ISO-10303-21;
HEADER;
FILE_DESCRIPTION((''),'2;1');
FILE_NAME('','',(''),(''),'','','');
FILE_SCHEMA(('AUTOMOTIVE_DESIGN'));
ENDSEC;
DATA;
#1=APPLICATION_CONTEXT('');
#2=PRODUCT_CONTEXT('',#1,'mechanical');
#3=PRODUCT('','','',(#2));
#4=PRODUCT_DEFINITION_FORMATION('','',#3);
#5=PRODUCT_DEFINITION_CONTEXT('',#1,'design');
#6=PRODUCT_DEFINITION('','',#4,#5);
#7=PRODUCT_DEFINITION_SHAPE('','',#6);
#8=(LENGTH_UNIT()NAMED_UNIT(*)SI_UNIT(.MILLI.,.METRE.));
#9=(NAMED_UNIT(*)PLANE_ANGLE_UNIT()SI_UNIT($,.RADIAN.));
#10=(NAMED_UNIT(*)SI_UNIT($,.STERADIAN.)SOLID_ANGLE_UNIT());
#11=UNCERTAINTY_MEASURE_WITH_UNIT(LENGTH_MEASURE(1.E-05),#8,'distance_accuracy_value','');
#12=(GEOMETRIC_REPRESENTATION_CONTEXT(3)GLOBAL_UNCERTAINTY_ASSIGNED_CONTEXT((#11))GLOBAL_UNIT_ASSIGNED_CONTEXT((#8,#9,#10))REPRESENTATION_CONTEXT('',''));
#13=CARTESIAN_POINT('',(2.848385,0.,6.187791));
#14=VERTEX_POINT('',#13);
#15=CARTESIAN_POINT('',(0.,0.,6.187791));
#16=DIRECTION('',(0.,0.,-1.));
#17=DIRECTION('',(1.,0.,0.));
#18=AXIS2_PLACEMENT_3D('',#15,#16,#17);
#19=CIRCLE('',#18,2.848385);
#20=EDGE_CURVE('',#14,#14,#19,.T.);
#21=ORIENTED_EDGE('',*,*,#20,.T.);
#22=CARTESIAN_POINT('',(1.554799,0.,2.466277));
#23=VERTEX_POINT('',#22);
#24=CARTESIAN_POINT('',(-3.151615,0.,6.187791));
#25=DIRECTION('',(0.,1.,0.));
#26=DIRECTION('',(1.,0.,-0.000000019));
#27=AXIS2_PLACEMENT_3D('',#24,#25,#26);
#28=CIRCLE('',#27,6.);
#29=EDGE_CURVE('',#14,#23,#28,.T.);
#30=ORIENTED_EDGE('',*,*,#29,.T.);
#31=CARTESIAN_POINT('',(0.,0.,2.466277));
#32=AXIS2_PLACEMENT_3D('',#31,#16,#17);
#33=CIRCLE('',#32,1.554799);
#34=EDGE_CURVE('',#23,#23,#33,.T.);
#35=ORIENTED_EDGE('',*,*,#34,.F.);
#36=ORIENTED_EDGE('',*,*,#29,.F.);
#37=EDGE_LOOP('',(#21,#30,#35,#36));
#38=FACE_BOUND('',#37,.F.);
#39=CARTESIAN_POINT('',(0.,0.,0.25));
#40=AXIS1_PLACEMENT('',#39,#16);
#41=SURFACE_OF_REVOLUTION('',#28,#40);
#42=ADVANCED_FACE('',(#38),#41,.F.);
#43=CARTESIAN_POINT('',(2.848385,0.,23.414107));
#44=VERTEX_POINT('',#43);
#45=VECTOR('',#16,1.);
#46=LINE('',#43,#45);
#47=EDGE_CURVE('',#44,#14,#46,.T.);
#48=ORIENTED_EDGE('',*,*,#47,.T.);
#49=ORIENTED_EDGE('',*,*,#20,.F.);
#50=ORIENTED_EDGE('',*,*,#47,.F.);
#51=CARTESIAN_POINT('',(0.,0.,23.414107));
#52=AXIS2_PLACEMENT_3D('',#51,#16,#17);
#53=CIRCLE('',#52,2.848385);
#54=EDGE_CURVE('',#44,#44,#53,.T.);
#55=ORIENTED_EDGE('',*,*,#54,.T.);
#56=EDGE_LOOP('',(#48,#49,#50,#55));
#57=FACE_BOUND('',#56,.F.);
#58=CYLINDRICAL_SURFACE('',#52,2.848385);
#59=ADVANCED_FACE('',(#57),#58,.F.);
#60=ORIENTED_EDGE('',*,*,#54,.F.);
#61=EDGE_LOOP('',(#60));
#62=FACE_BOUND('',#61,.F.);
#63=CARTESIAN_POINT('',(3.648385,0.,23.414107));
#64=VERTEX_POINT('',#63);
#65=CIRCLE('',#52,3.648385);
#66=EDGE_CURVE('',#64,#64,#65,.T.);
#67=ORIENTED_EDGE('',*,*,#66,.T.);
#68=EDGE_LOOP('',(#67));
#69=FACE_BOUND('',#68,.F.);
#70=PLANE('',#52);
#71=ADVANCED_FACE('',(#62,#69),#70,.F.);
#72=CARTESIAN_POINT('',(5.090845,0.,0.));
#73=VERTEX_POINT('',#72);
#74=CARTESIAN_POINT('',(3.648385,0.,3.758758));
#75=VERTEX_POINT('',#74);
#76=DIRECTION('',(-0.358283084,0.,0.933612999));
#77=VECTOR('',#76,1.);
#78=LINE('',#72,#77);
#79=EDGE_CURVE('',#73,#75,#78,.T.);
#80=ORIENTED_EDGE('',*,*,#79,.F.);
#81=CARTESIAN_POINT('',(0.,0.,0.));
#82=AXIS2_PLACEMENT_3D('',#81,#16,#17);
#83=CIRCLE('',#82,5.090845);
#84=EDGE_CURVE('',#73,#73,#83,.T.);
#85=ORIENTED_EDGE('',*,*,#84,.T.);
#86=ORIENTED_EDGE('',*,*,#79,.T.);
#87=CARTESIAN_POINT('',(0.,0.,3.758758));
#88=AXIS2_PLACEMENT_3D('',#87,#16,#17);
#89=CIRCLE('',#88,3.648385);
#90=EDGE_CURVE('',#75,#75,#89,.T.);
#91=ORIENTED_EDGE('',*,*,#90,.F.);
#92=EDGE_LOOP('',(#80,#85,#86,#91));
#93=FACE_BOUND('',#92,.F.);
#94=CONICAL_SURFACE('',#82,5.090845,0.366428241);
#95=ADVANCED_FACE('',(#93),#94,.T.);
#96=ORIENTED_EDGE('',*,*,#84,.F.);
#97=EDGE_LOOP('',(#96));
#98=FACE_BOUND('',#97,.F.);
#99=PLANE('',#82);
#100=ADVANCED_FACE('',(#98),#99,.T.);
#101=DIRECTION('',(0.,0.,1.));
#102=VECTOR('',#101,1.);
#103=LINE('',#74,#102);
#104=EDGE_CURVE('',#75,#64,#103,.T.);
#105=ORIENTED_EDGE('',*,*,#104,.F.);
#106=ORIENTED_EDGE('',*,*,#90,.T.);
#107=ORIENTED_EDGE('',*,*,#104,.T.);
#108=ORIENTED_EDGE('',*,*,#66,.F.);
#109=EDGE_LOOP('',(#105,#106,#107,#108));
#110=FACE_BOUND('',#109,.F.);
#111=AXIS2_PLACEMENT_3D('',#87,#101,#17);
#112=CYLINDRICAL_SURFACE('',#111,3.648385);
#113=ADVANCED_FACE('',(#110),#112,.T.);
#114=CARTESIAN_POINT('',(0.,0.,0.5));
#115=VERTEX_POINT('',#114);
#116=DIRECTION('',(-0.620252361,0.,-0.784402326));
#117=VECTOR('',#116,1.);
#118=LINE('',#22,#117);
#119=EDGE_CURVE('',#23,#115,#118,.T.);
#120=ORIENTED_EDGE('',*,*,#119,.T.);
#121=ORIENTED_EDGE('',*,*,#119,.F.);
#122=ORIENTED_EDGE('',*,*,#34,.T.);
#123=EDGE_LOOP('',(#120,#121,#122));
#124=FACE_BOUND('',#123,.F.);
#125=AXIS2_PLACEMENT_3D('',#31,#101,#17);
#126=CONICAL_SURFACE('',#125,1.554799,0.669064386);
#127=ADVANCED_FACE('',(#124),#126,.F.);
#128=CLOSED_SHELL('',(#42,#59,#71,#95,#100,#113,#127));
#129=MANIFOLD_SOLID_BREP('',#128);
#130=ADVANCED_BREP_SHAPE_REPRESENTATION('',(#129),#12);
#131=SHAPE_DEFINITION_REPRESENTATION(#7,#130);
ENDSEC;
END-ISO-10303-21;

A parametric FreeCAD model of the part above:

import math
import FreeCAD as App
import Part
import Sketcher

V = App.Vector
Q = App.Units.Quantity

doc = App.newDocument("Part")
body = doc.addObject("PartDesign::Body", "Body")

sketch1 = body.newObject("Sketcher::SketchObject", "Sketch")
sketch1.AttachmentSupport = (doc.getObject("XZ_Plane"), [""])
sketch1.MapMode = "FlatFace"
sketch1.addGeometry([
    Part.LineSegment(V(0, 0.5, 0), V(0, 0, 0)),
    Part.LineSegment(V(0, 0, 0), V(5.1, 0, 0)),
    Part.LineSegment(V(5.1, 0, 0), V(3.6, 3.8, 0)),
    Part.LineSegment(V(3.6, 3.8, 0), V(3.6, 23.4, 0)),
    Part.LineSegment(V(3.6, 23.4, 0), V(2.8, 23.4, 0)),
    Part.LineSegment(V(2.8, 23.4, 0), V(2.8, 6.2, 0)),
    Part.ArcOfCircle(Part.Circle(V(-3.2, 6.2, 0), V(0, 0, 1), 6), math.radians(-38), math.radians(0)),
    Part.LineSegment(V(1.6, 2.5, 0), V(0, 0.5, 0)),
], False)
sketch1.addConstraint([
    Sketcher.Constraint("Coincident", 0, 2, 1, 1),
    Sketcher.Constraint("Coincident", 1, 2, 2, 1),
    Sketcher.Constraint("Coincident", 2, 2, 3, 1),
    Sketcher.Constraint("Coincident", 3, 2, 4, 1),
    Sketcher.Constraint("Coincident", 4, 2, 5, 1),
    Sketcher.Constraint("Tangent", 5, 2, 6, 2),
    Sketcher.Constraint("Tangent", 6, 1, 7, 1),
    Sketcher.Constraint("Coincident", 7, 2, 0, 1),
    Sketcher.Constraint("Vertical", 0),
    Sketcher.Constraint("Horizontal", 1),
    Sketcher.Constraint("Vertical", 3),
    Sketcher.Constraint("Horizontal", 4),
    Sketcher.Constraint("Vertical", 5),
    Sketcher.Constraint("Coincident", 0, 2, -1, 1),
    Sketcher.Constraint("Radius", 6, Q("6 mm")),
    Sketcher.Constraint("DistanceX", 4, 2, 4, 1, Q("0.8 mm")),
    Sketcher.Constraint("DistanceY", 0, 2, 0, 1, Q("0.5 mm")),
    Sketcher.Constraint("DistanceY", 3, 1, 3, 2, Q("19.655349 mm")),
    Sketcher.Constraint("DistanceX", -1, 1, 6, 1, Q("1.554799 mm")),
    Sketcher.Constraint("Distance", 7, Q("2.50672 mm")),
    Sketcher.Constraint("DistanceX", 1, 1, 1, 2, Q("5.090845 mm")),
    Sketcher.Constraint("DistanceY", 5, 2, 5, 1, Q("17.226316 mm")),
])
revolution = body.newObject("PartDesign::Revolution", "Revolution")
revolution.Profile = sketch1
revolution.ReferenceAxis = (sketch1, ["V_Axis"])
revolution.Angle = 360

doc.recompute()
